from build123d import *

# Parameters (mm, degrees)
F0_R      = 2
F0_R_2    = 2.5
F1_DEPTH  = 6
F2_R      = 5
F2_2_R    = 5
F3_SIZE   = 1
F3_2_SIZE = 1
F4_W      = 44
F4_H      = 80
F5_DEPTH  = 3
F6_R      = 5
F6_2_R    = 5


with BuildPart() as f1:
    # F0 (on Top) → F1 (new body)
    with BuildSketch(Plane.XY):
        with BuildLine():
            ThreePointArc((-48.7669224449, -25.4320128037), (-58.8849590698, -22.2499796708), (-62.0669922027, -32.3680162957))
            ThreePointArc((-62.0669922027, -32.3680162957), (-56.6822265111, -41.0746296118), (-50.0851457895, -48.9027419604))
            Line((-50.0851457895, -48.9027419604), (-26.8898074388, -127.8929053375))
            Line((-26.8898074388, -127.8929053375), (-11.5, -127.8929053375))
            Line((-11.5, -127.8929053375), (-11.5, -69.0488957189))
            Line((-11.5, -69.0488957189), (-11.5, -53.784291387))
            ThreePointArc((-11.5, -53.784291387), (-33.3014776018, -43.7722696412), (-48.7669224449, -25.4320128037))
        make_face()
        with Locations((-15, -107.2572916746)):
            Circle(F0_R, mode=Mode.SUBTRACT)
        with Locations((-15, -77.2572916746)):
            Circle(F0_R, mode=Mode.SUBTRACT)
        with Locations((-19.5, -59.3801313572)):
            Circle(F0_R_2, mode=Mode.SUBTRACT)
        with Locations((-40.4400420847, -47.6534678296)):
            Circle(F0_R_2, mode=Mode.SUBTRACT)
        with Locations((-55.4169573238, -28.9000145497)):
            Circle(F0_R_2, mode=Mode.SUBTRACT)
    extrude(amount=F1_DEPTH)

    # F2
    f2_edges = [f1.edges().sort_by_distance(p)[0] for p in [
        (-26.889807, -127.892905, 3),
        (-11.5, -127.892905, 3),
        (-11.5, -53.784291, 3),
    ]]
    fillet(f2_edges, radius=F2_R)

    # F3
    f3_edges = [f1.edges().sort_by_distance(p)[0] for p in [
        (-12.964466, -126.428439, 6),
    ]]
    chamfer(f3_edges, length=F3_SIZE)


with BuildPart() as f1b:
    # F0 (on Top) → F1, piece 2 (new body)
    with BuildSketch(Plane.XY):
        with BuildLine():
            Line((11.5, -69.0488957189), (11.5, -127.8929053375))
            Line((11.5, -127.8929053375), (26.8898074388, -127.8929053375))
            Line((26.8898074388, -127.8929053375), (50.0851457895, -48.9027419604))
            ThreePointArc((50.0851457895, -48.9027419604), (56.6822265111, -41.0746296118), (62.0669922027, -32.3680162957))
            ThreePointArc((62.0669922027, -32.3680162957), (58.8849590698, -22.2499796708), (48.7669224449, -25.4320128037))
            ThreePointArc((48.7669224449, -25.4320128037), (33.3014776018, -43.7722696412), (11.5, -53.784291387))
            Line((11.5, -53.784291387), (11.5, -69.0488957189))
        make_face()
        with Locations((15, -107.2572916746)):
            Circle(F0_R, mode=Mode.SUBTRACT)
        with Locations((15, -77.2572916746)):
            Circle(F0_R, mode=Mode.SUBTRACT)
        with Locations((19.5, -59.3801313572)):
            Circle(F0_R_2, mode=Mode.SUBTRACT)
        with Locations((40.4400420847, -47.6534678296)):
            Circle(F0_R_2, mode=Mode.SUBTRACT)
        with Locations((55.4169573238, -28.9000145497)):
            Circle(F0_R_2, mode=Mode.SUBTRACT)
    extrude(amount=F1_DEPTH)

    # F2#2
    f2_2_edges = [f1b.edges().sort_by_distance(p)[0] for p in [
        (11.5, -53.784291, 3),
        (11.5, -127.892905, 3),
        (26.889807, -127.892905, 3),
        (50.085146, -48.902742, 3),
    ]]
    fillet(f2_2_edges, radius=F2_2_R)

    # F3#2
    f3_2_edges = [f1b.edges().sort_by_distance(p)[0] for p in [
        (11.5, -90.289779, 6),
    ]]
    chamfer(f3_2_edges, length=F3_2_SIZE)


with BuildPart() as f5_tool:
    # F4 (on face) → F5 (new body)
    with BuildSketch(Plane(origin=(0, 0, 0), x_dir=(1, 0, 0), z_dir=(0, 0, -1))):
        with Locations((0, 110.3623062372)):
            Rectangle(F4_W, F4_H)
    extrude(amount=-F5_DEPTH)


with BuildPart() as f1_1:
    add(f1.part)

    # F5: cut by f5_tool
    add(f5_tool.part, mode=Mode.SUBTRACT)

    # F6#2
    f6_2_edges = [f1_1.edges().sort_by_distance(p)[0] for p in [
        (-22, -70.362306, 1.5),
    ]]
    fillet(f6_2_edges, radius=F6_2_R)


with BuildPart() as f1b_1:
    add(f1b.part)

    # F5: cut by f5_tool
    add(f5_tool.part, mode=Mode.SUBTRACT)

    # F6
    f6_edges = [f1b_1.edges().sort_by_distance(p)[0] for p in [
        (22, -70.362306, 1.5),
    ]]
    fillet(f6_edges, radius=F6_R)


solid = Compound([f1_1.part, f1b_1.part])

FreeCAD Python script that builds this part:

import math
import FreeCAD as App
import Part
import Sketcher
from FreeCAD import Vector


def edges_at(feature, points):
    """Names of the edges that pass closest to the given points."""
    edges = feature.Shape.Edges
    near = lambda p: min(range(len(edges)), key=lambda i: edges[i].distToShape(Part.Vertex(*p))[0])
    return sorted({f"Edge{near(p) + 1}" for p in points})


def add_polygon(sketch, points):
    """Adds a closed chain of lines whose ends are joined by coincident constraints."""
    first, n = sketch.GeometryCount, len(points)
    for a, b in zip(points, points[1:] + points[:1]):
        sketch.addGeometry(Part.LineSegment(App.Vector(*a, 0), App.Vector(*b, 0)), False)
    for i in range(n):
        sketch.addConstraint(Sketcher.Constraint("Coincident", first + i, 2, first + (i + 1) % n, 1))

doc = App.newDocument("Part")
body = doc.addObject("PartDesign::Body", "Body")

# Sketch on XY plane
sketch1 = body.newObject("Sketcher::SketchObject", "Sketch")
sketch1.AttachmentSupport = (doc.getObject("XY_Plane"), [""])
sketch1.MapMode = "FlatFace"
sketch1.addGeometry([
    Part.ArcOfCircle(Part.Circle(Vector(-55.4, -28.9, 0), Vector(0, 0, 1), 7.5), math.radians(28), math.radians(208)),  # 0
    Part.ArcOfCircle(Part.Circle(Vector(0, 0, 0), Vector(0, 0, 1), 70), math.radians(-152.46), math.radians(-135.68)),  # 1
    Part.LineSegment(Vector(-50.1, -48.9, 0), Vector(-26.9, -127.9, 0)),  # 2
    Part.LineSegment(Vector(-26.9, -127.9, 0), Vector(-11.5, -127.9, 0)),  # 3
    Part.LineSegment(Vector(-11.5, -127.9, 0), Vector(-11.5, -53.8, 0)),  # 4
    Part.ArcOfCircle(Part.Circle(Vector(0, 0, 0), Vector(0, 0, 1), 55), math.radians(-152), math.radians(-102)),  # 5
    Part.Circle(Vector(-15, -107.3, 0), Vector(0, 0, 1), 2),  # 6
    Part.Circle(Vector(-15, -77.3, 0), Vector(0, 0, 1), 2),  # 7
    Part.Circle(Vector(-40.4, -47.7, 0), Vector(0, 0, 1), 2.5),  # 8
    Part.Circle(Vector(-55.4, -28.9, 0), Vector(0, 0, 1), 2.5),  # 9
    Part.Circle(Vector(-19.5, -59.4, 0), Vector(0, 0, 1), 2.5),  # 10
], False)
sketch1.addConstraint([
    Sketcher.Constraint("Tangent", 0, 2, 1, 1),
    Sketcher.Constraint("Coincident", 1, 2, 2, 1),
    Sketcher.Constraint("Coincident", 2, 2, 3, 1),
    Sketcher.Constraint("Coincident", 3, 2, 4, 1),
    Sketcher.Constraint("Coincident", 4, 2, 5, 2),
    Sketcher.Constraint("Tangent", 5, 1, 0, 1),
    Sketcher.Constraint("Horizontal", 3),
    Sketcher.Constraint("Vertical", 4),
    Sketcher.Constraint("Coincident", 1, 3, -1, 1),
    Sketcher.Constraint("Coincident", 5, 3, -1, 1),
    Sketcher.Constraint("Coincident", 9, 3, 0, 3),
    Sketcher.Constraint("Equal", 6, 7),
    Sketcher.Constraint("Equal", 8, 9),
    Sketcher.Constraint("Equal", 9, 10),
    Sketcher.Constraint("Vertical", 6, 3, 7, 3),
    Sketcher.Constraint("Diameter", 6, 4.0),
    Sketcher.Constraint("Diameter", 8, 5.0),
    Sketcher.Constraint("Radius", 1, 70.0),
    Sketcher.Constraint("Radius", 5, 55.0),
    Sketcher.Constraint("DistanceX", 6, 3, -1, 1, 15.0),
    Sketcher.Constraint("DistanceY", 6, 3, 7, 3, 30.0),
    Sketcher.Constraint("DistanceX", 10, 3, 3, 2, 8.0),
    Sketcher.Constraint("DistanceX", 10, 3, -1, 1, 19.5),
    Sketcher.Constraint("DistanceY", 0, 2, 0, 3, 3.468002),
    Sketcher.Constraint("DistanceY", 7, 3, 4, 2, 23.473),
    Sketcher.Constraint("Distance", 2, 82.325389),
    Sketcher.Constraint("DistanceX", 3, 1, 3, 2, 15.389807),
    Sketcher.Constraint("DistanceY", 4, 1, 4, 2, 74.108614),
    Sketcher.Constraint("DistanceY", 10, 3, -1, 1, 59.380131),
    Sketcher.Constraint("DistanceX", 0, 2, 8, 3, 21.62695),
    Sketcher.Constraint("DistanceY", 8, 3, 0, 2, 15.285452),
])
pad1 = body.newObject("PartDesign::Pad", "Pad")
pad1.Profile = sketch1
pad1.Length = 6
doc.recompute()

fillet = body.newObject("PartDesign::Fillet", "Fillet")
fillet.Base = (pad1, edges_at(pad1, [(-26.89, -127.893, 3), (-11.5, -127.893, 3), (-11.5, -53.784, 3)]))
fillet.Radius = 5
doc.recompute()

chamfer = body.newObject("PartDesign::Chamfer", "Chamfer")
chamfer.Base = (fillet, edges_at(fillet, [(-12.964, -126.428, 6)]))
chamfer.Size = 1
body2 = doc.addObject("PartDesign::Body", "Body001")

# Sketch on XY plane
sketch2 = body2.newObject("Sketcher::SketchObject", "Sketch001")
sketch2.AttachmentSupport = (doc.getObject("XY_Plane001"), [""])
sketch2.MapMode = "FlatFace"
sketch2.addGeometry([
    Part.LineSegment(Vector(11.5, -127.9, 0), Vector(26.9, -127.9, 0)),  # 0
    Part.LineSegment(Vector(26.9, -127.9, 0), Vector(50.1, -48.9, 0)),  # 1
    Part.ArcOfCircle(Part.Circle(Vector(0, 0, 0), Vector(0, 0, 1), 70), math.radians(-44.32), math.radians(-27.54)),  # 2
    Part.ArcOfCircle(Part.Circle(Vector(55.4, -28.9, 0), Vector(0, 0, 1), 7.5), math.radians(-28), math.radians(152)),  # 3
    Part.ArcOfCircle(Part.Circle(Vector(0, 0, 0), Vector(0, 0, 1), 55), math.radians(-78), math.radians(-28)),  # 4
    Part.LineSegment(Vector(11.5, -53.8, 0), Vector(11.5, -127.9, 0)),  # 5
    Part.Circle(Vector(15, -107.3, 0), Vector(0, 0, 1), 2),  # 6
    Part.Circle(Vector(15, -77.3, 0), Vector(0, 0, 1), 2),  # 7
    Part.Circle(Vector(19.5, -59.4, 0), Vector(0, 0, 1), 2.5),  # 8
    Part.Circle(Vector(40.4, -47.7, 0), Vector(0, 0, 1), 2.5),  # 9
    Part.Circle(Vector(55.4, -28.9, 0), Vector(0, 0, 1), 2.5),  # 10
], False)
sketch2.addConstraint([
    Sketcher.Constraint("Coincident", 0, 2, 1, 1),
    Sketcher.Constraint("Coincident", 1, 2, 2, 1),
    Sketcher.Constraint("Tangent", 2, 2, 3, 1),
    Sketcher.Constraint("Tangent", 3, 2, 4, 2),
    Sketcher.Constraint("Coincident", 4, 1, 5, 1),
    Sketcher.Constraint("Coincident", 5, 2, 0, 1),
    Sketcher.Constraint("Horizontal", 0),
    Sketcher.Constraint("Vertical", 5),
    Sketcher.Constraint("Coincident", 2, 3, -1, 1),
    Sketcher.Constraint("Coincident", 4, 3, -1, 1),
    Sketcher.Constraint("Coincident", 10, 3, 3, 3),
    Sketcher.Constraint("Equal", 6, 7),
    Sketcher.Constraint("Equal", 8, 9),
    Sketcher.Constraint("Equal", 9, 10),
    Sketcher.Constraint("Vertical", 6, 3, 7, 3),
    Sketcher.Constraint("Diameter", 6, 4.0),
    Sketcher.Constraint("Diameter", 8, 5.0),
    Sketcher.Constraint("Radius", 2, 70.0),
    Sketcher.Constraint("Radius", 4, 55.0),
    Sketcher.Constraint("DistanceX", -1, 1, 6, 3, 15.0),
    Sketcher.Constraint("DistanceY", 6, 3, 7, 3, 30.0),
    Sketcher.Constraint("DistanceX", 4, 1, 8, 3, 8.0),
    Sketcher.Constraint("DistanceX", -1, 1, 8, 3, 19.5),
    Sketcher.Constraint("DistanceY", 3, 3, 3, 2, 3.468002),
    Sketcher.Constraint("DistanceY", 7, 3, 4, 1, 23.473),
    Sketcher.Constraint("Distance", 1, 82.325389),
    Sketcher.Constraint("DistanceX", 0, 1, 0, 2, 15.389807),
    Sketcher.Constraint("DistanceY", 5, 2, 5, 1, 74.108614),
    Sketcher.Constraint("DistanceY", 8, 3, -1, 1, 59.380131),
    Sketcher.Constraint("DistanceX", 9, 3, 2, 2, 21.62695),
    Sketcher.Constraint("DistanceY", 9, 3, 2, 2, 15.285452),
])
pad2 = body2.newObject("PartDesign::Pad", "Pad001")
pad2.Profile = sketch2
pad2.Length = 6
doc.recompute()

fillet2 = body2.newObject("PartDesign::Fillet", "Fillet001")
fillet2.Base = (pad2, edges_at(pad2, [
    (11.5, -53.784, 3),
    (11.5, -127.893, 3),
    (26.89, -127.893, 3),
    (50.085, -48.903, 3),
]))
fillet2.Radius = 5
doc.recompute()

chamfer2 = body2.newObject("PartDesign::Chamfer", "Chamfer001")
chamfer2.Base = (fillet2, edges_at(fillet2, [(11.5, -90.29, 6)]))
chamfer2.Size = 1
body3 = doc.addObject("PartDesign::Body", "Body002")

# Sketch on XY plane
sketch3 = body3.newObject("Sketcher::SketchObject", "Sketch002")
sketch3.AttachmentSupport = (doc.getObject("XY_Plane002"), [""])
sketch3.MapMode = "FlatFace"
add_polygon(sketch3, [(-22, -150), (-22, -70), (22, -70), (22, -150)])  # lines 0-3
sketch3.addConstraint([
    Sketcher.Constraint("Vertical", 0),
    Sketcher.Constraint("Horizontal", 1),
    Sketcher.Constraint("Vertical", 2),
    Sketcher.Constraint("Horizontal", 3),
    Sketcher.Constraint("DistanceX", 1, 1, 1, 2, 44.0),
    Sketcher.Constraint("DistanceY", 0, 1, 0, 2, 80.0),
    Sketcher.Constraint("DistanceX", 0, 2, -1, 1, 22.0),
    Sketcher.Constraint("DistanceY", 0, 2, -1, 1, 70.362306),
])
pad3 = body3.newObject("PartDesign::Pad", "Pad002")
pad3.Profile = sketch3
pad3.Length = 3
doc.recompute()

body4 = doc.addObject("PartDesign::Body", "Body003")
body4.BaseFeature = body3
boolean = body.newObject("PartDesign::Boolean", "Boolean")
boolean.Type = "Cut"
boolean.addObjects([body4])
doc.recompute()

fillet3 = body.newObject("PartDesign::Fillet", "Fillet002")
fillet3.Base = (boolean, edges_at(boolean, [(-22, -70.362, 1.5)]))
fillet3.Radius = 5
doc.recompute()

boolean2 = body2.newObject("PartDesign::Boolean", "Boolean001")
boolean2.Type = "Cut"
boolean2.addObjects([body3])
doc.recompute()

fillet4 = body2.newObject("PartDesign::Fillet", "Fillet003")
fillet4.Base = (boolean2, edges_at(boolean2, [(22, -70.362, 1.5)]))
fillet4.Radius = 5

doc.recompute()
